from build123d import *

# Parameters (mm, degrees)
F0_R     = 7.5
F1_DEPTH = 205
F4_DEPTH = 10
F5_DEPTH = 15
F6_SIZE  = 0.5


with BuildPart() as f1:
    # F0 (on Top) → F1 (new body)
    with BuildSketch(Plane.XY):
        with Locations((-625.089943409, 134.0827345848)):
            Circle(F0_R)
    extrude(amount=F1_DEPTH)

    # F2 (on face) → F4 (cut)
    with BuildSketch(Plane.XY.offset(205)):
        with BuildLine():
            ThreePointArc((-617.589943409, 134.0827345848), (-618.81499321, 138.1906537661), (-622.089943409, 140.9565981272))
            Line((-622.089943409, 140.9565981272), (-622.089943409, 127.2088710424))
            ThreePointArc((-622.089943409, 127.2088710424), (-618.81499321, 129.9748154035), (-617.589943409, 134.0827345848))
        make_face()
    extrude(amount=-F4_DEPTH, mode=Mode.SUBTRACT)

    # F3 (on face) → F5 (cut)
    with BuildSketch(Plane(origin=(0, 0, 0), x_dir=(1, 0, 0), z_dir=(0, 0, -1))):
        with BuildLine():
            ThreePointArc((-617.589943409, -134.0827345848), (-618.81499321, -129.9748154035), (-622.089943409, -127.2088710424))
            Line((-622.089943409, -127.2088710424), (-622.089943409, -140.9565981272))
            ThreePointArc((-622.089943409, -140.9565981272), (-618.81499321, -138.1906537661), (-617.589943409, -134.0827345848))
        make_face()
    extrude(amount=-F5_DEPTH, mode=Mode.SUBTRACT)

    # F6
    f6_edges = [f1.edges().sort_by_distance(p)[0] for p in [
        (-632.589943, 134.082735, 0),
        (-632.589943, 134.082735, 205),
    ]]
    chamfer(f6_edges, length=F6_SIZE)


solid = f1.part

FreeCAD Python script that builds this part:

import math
import FreeCAD as App
import Part
import Sketcher

V = App.Vector
Q = App.Units.Quantity


def edges_at(feature, points):
    """Names of the edges that pass closest to the given points."""
    edges = feature.Shape.Edges
    near = lambda p: min(range(len(edges)), key=lambda i: edges[i].distToShape(Part.Vertex(*p))[0])
    return sorted({f"Edge{near(p) + 1}" for p in points})

doc = App.newDocument("Part")
body = doc.addObject("PartDesign::Body", "Body")

# Sketch on XY plane
sketch1 = doc.addObject("Sketcher::SketchObject", "Sketch")
body.addObject(sketch1)
sketch1.AttachmentSupport = (doc.XY_Plane, [""])
sketch1.MapMode = "FlatFace"
sketch1.addGeometry(Part.Circle(V(-625, 134, 0), V(0, 0, 1), 8), False)
sketch1.addConstraint(Sketcher.Constraint("Diameter", 0, Q("15 mm")))
sketch1.addConstraint(Sketcher.Constraint("DistanceX", 0, 3, -1, 1, Q("625.089943 mm")))
sketch1.addConstraint(Sketcher.Constraint("DistanceY", -1, 1, 0, 3, Q("134.082735 mm")))
pad1 = doc.addObject("PartDesign::Pad", "Pad")
body.addObject(pad1)
pad1.Profile = sketch1
pad1.Length = 205

# Sketch on XY plane
sketch2 = doc.addObject("Sketcher::SketchObject", "Sketch001")
body.addObject(sketch2)
sketch2.AttachmentSupport = (doc.XY_Plane, [""])
sketch2.MapMode = "FlatFace"
sketch2.AttachmentOffset = App.Placement(V(0, 0, 205), App.Rotation())
sketch2.addGeometry(Part.ArcOfCircle(Part.Circle(V(-625, 134, 0), V(0, 0, 1), 8), math.radians(0), math.radians(66)), False)
sketch2.addGeometry(Part.LineSegment(V(-622, 141, 0), V(-622, 127, 0)), False)
sketch2.addGeometry(Part.ArcOfCircle(Part.Circle(V(-625, 134, 0), V(0, 0, 1), 8), math.radians(-66), math.radians(0)), False)
sketch2.addConstraint(Sketcher.Constraint("Coincident", 0, 2, 1, 1))
sketch2.addConstraint(Sketcher.Constraint("Coincident", 1, 2, 2, 1))
sketch2.addConstraint(Sketcher.Constraint("Tangent", 2, 2, 0, 1))
sketch2.addConstraint(Sketcher.Constraint("Vertical", 1))
sketch2.addConstraint(Sketcher.Constraint("Equal", 0, 2))
sketch2.addConstraint(Sketcher.Constraint("Horizontal", 0, 3, 2, 2))
sketch2.addConstraint(Sketcher.Constraint("Radius", 0, Q("7.5 mm")))
sketch2.addConstraint(Sketcher.Constraint("DistanceX", 0, 3, 0, 2, Q("3 mm")))
sketch2.addConstraint(Sketcher.Constraint("DistanceY", -1, 1, 0, 2, Q("140.956598 mm")))
sketch2.addConstraint(Sketcher.Constraint("DistanceX", 0, 3, -1, 1, Q("625.089943 mm")))
pocket1 = doc.addObject("PartDesign::Pocket", "Pocket")
body.addObject(pocket1)
pocket1.Profile = sketch2
pocket1.Length = 10

# Sketch on XY plane
sketch3 = doc.addObject("Sketcher::SketchObject", "Sketch002")
body.addObject(sketch3)
sketch3.AttachmentSupport = (doc.XY_Plane, [""])
sketch3.MapMode = "FlatFace"
sketch3.addGeometry(Part.ArcOfCircle(Part.Circle(V(-625, 134, 0), V(0, 0, 1), 8), math.radians(-66), math.radians(0)), False)
sketch3.addGeometry(Part.LineSegment(V(-622, 127, 0), V(-622, 141, 0)), False)
sketch3.addGeometry(Part.ArcOfCircle(Part.Circle(V(-625, 134, 0), V(0, 0, 1), 8), math.radians(0), math.radians(66)), False)
sketch3.addConstraint(Sketcher.Constraint("Coincident", 0, 1, 1, 1))
sketch3.addConstraint(Sketcher.Constraint("Coincident", 1, 2, 2, 2))
sketch3.addConstraint(Sketcher.Constraint("Tangent", 2, 1, 0, 2))
sketch3.addConstraint(Sketcher.Constraint("Vertical", 1))
sketch3.addConstraint(Sketcher.Constraint("Equal", 0, 2))
sketch3.addConstraint(Sketcher.Constraint("Horizontal", 0, 3, 2, 1))
sketch3.addConstraint(Sketcher.Constraint("Radius", 0, Q("7.5 mm")))
sketch3.addConstraint(Sketcher.Constraint("DistanceX", 0, 3, 0, 1, Q("3 mm")))
sketch3.addConstraint(Sketcher.Constraint("DistanceY", -1, 1, 1, 2, Q("140.956598 mm")))
sketch3.addConstraint(Sketcher.Constraint("DistanceX", 0, 3, -1, 1, Q("625.089943 mm")))
pocket2 = doc.addObject("PartDesign::Pocket", "Pocket001")
body.addObject(pocket2)
pocket2.Profile = sketch3
pocket2.Length = 15
pocket2.Reversed = True
doc.recompute()

chamfer = doc.addObject("PartDesign::Chamfer", "Chamfer")
body.addObject(chamfer)
chamfer.Base = (pocket2, edges_at(pocket2, [(-632.59, 134.083, 0), (-632.59, 134.083, 205)]))
chamfer.Size = 0.5

doc.recompute()
